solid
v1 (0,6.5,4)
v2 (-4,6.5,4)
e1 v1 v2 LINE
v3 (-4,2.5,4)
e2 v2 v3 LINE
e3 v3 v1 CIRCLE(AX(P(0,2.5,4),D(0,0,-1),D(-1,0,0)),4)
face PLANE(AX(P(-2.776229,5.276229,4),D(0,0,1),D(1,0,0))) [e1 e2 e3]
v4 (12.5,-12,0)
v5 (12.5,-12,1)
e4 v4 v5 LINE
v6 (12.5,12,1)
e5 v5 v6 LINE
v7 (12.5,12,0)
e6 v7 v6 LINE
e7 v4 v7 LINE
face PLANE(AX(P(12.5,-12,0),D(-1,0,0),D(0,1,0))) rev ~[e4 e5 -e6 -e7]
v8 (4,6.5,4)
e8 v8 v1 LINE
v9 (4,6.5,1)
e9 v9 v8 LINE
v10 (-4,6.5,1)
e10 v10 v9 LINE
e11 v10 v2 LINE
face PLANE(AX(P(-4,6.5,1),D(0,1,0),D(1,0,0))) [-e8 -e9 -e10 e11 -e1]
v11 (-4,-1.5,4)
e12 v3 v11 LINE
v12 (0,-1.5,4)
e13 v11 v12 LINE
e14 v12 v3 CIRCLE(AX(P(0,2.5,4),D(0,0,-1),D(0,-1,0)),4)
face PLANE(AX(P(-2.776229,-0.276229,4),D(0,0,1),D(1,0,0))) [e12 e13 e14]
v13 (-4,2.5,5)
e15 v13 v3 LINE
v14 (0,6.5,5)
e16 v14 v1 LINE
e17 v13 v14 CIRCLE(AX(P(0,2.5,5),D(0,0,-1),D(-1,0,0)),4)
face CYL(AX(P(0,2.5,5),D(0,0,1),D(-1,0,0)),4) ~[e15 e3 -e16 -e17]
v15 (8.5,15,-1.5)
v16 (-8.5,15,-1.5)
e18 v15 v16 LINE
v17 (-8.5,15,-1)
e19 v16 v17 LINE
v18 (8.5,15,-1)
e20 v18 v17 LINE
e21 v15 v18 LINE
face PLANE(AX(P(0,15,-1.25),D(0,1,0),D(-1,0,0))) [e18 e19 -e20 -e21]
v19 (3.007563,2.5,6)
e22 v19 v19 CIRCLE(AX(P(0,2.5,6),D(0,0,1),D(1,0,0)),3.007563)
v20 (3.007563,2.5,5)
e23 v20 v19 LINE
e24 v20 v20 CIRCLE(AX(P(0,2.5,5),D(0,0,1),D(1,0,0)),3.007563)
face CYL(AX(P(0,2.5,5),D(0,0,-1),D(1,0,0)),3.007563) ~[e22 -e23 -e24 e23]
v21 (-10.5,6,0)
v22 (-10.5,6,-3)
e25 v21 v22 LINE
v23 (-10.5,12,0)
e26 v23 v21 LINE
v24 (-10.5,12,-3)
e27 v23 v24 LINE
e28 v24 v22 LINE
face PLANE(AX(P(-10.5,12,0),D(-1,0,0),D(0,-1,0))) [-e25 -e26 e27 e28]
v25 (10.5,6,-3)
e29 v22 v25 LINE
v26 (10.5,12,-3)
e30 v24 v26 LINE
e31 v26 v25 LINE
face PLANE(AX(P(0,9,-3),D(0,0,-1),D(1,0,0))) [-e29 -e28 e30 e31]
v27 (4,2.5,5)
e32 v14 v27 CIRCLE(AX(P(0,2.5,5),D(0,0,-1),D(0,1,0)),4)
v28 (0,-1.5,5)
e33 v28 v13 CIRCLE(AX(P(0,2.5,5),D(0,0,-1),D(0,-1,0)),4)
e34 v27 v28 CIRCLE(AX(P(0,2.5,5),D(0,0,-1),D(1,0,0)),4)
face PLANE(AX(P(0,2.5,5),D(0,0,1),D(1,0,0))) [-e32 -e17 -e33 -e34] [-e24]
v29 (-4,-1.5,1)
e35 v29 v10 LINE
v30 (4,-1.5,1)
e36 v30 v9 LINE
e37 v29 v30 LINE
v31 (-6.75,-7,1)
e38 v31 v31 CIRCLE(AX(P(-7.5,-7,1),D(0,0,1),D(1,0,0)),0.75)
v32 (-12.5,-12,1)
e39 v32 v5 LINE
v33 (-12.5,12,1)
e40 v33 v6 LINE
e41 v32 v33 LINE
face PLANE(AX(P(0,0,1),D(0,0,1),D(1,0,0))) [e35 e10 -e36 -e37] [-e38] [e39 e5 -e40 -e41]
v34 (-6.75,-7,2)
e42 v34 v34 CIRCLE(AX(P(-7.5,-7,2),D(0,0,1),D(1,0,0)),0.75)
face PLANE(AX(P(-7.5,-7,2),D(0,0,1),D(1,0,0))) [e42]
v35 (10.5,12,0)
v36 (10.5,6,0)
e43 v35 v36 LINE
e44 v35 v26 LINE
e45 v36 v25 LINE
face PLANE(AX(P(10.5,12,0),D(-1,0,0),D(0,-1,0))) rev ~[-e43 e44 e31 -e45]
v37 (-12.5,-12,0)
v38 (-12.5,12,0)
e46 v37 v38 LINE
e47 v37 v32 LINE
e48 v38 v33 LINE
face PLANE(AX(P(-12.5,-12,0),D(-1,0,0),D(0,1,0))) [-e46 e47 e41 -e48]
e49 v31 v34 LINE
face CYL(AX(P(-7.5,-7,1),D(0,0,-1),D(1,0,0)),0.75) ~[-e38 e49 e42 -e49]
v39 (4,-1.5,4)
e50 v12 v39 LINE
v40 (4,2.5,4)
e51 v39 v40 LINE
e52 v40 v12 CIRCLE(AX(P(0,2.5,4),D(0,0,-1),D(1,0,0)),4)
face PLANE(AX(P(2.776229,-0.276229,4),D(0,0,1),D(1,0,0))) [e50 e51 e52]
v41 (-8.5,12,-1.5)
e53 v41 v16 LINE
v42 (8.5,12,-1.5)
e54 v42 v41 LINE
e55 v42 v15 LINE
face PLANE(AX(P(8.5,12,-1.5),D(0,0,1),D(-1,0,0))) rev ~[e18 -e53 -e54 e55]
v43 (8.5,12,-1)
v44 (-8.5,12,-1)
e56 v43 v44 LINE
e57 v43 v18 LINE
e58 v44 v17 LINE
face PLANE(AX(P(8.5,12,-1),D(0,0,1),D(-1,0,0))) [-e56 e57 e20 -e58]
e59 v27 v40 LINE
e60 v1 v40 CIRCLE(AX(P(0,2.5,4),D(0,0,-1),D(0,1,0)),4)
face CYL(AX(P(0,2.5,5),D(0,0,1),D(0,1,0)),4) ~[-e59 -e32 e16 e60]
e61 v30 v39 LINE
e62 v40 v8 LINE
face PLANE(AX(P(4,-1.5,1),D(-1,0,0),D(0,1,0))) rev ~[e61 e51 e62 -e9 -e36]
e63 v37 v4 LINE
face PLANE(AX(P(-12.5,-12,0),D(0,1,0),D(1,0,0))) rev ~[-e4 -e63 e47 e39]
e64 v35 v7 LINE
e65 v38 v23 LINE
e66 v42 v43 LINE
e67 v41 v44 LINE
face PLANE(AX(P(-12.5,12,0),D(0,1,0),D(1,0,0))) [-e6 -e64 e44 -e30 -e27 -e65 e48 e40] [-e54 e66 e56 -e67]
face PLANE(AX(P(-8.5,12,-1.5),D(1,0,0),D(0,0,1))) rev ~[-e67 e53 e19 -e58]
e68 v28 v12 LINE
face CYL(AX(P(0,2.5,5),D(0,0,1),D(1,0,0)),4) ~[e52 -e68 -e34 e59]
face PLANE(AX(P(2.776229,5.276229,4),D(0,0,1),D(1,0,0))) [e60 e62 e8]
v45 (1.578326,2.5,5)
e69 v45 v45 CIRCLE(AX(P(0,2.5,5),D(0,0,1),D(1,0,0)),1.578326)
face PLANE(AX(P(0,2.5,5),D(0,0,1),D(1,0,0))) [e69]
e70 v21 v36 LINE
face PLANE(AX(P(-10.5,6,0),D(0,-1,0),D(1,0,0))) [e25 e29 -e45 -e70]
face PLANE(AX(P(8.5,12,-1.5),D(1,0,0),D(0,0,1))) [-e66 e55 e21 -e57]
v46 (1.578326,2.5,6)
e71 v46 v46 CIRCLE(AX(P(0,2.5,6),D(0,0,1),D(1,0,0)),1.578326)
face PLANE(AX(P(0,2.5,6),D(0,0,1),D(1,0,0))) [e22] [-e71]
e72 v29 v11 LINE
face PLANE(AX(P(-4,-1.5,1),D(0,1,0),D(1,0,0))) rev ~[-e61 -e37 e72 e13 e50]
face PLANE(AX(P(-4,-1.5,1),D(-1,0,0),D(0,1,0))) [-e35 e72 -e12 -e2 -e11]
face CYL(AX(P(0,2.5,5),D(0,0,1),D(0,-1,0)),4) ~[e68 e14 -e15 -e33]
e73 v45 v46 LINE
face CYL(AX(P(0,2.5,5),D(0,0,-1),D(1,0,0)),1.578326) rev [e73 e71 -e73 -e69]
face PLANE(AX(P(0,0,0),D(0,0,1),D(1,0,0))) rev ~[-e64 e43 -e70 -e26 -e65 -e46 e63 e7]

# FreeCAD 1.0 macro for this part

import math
import FreeCAD as App
import Part
import Sketcher

V = App.Vector
Q = App.Units.Quantity


def add_polygon(sketch, points):
    """Adds a closed chain of lines whose ends are joined by coincident constraints."""
    first, n = sketch.GeometryCount, len(points)
    for a, b in zip(points, points[1:] + points[:1]):
        sketch.addGeometry(Part.LineSegment(App.Vector(*a, 0), App.Vector(*b, 0)), False)
    for i in range(n):
        sketch.addConstraint(Sketcher.Constraint("Coincident", first + i, 2, first + (i + 1) % n, 1))

doc = App.newDocument("Part")
body = doc.addObject("PartDesign::Body", "Body")

# Sketch on XY plane
sketch1 = body.newObject("Sketcher::SketchObject", "Sketch")
sketch1.AttachmentSupport = (doc.getObject("XY_Plane"), [""])
sketch1.MapMode = "FlatFace"
add_polygon(sketch1, [(-12, 12), (-12, -12), (12, -12), (12, 12)])  # lines 0-3
sketch1.addConstraint([
    Sketcher.Constraint("Vertical", 0),
    Sketcher.Constraint("Horizontal", 1),
    Sketcher.Constraint("Vertical", 2),
    Sketcher.Constraint("Horizontal", 3),
    Sketcher.Constraint("Symmetric", 0, 2, 2, 2, -1, 1),
    Sketcher.Constraint("DistanceX", 1, 1, 1, 2, Q("25 mm")),
    Sketcher.Constraint("DistanceY", 0, 2, 0, 1, Q("24 mm")),
])
pad1 = body.newObject("PartDesign::Pad", "Pad")
pad1.Profile = sketch1
pad1.Length = 1

# Sketch on XY plane
sketch2 = body.newObject("Sketcher::SketchObject", "Sketch001")
sketch2.AttachmentSupport = (doc.getObject("XY_Plane"), [""])
sketch2.MapMode = "FlatFace"
sketch2.AttachmentOffset = App.Placement(V(0, 0, 1), App.Rotation())
add_polygon(sketch2, [(-4, 6), (-4, -2), (4, -2), (4, 6)])  # lines 0-3
sketch2.addConstraint([
    Sketcher.Constraint("Vertical", 0),
    Sketcher.Constraint("Horizontal", 1),
    Sketcher.Constraint("Vertical", 2),
    Sketcher.Constraint("Horizontal", 3),
    Sketcher.Constraint("Equal", 3, 0),
    Sketcher.Constraint("DistanceX", 1, 1, 1, 2, Q("8 mm")),
    Sketcher.Constraint("DistanceX", 0, 2, -1, 1, Q("4 mm")),
    Sketcher.Constraint("DistanceY", 0, 2, -1, 1, Q("1.5 mm")),
])
pad2 = body.newObject("PartDesign::Pad", "Pad001")
pad2.Profile = sketch2
pad2.Length = 4

# Sketch on XY plane
sketch3 = body.newObject("Sketcher::SketchObject", "Sketch002")
sketch3.AttachmentSupport = (doc.getObject("XY_Plane"), [""])
sketch3.MapMode = "FlatFace"
sketch3.AttachmentOffset = App.Placement(V(0, 0, 5), App.Rotation())
sketch3.addGeometry([
    Part.ArcOfCircle(Part.Circle(V(0, 2.5, 0), V(0, 0, 1), 4), math.radians(0), math.radians(90)),  # 0
    Part.LineSegment(V(4, 2.5, 0), V(4, 6.5, 0)),  # 1
    Part.LineSegment(V(4, 6.5, 0), V(0, 6.5, 0)),  # 2
    Part.ArcOfCircle(Part.Circle(V(0, 2.5, 0), V(0, 0, 1), 4), math.radians(90), math.radians(180)),  # 3
    Part.LineSegment(V(0, 6.5, 0), V(-4, 6.5, 0)),  # 4
    Part.LineSegment(V(-4, 6.5, 0), V(-4, 2.5, 0)),  # 5
    Part.LineSegment(V(-4, -1.5, 0), V(0, -1.5, 0)),  # 6
    Part.ArcOfCircle(Part.Circle(V(0, 2.5, 0), V(0, 0, 1), 4), math.radians(180), math.radians(270)),  # 7
    Part.LineSegment(V(-4, 2.5, 0), V(-4, -1.5, 0)),  # 8
    Part.LineSegment(V(4, -1.5, 0), V(4, 2.5, 0)),  # 9
    Part.ArcOfCircle(Part.Circle(V(0, 2.5, 0), V(0, 0, 1), 4), math.radians(-90), math.radians(0)),  # 10
    Part.LineSegment(V(0, -1.5, 0), V(4, -1.5, 0)),  # 11
], False)
sketch3.addConstraint([
    Sketcher.Constraint("Tangent", 0, 1, 1, 1),
    Sketcher.Constraint("Coincident", 1, 2, 2, 1),
    Sketcher.Constraint("Tangent", 2, 2, 0, 2),
    Sketcher.Constraint("Tangent", 3, 1, 4, 1),
    Sketcher.Constraint("Coincident", 4, 2, 5, 1),
    Sketcher.Constraint("Tangent", 5, 2, 3, 2),
    Sketcher.Constraint("Tangent", 6, 2, 7, 2),
    Sketcher.Constraint("Tangent", 7, 1, 8, 1),
    Sketcher.Constraint("Coincident", 8, 2, 6, 1),
    Sketcher.Constraint("Tangent", 9, 2, 10, 2),
    Sketcher.Constraint("Tangent", 10, 1, 11, 1),
    Sketcher.Constraint("Coincident", 11, 2, 9, 1),
    Sketcher.Constraint("Vertical", 1),
    Sketcher.Constraint("Horizontal", 2),
    Sketcher.Constraint("Horizontal", 4),
    Sketcher.Constraint("Vertical", 5),
    Sketcher.Constraint("Horizontal", 6),
    Sketcher.Constraint("Vertical", 8),
    Sketcher.Constraint("Vertical", 9),
    Sketcher.Constraint("Horizontal", 11),
    Sketcher.Constraint("Coincident", 3, 3, 0, 3),
    Sketcher.Constraint("Coincident", 7, 3, 0, 3),
    Sketcher.Constraint("Coincident", 10, 3, 0, 3),
    Sketcher.Constraint("Equal", 0, 3),
    Sketcher.Constraint("Equal", 3, 7),
    Sketcher.Constraint("Equal", 7, 10),
    Sketcher.Constraint("PointOnObject", 0, 3, -2),
    Sketcher.Constraint("Radius", 0, Q("4 mm")),
    Sketcher.Constraint("DistanceY", -1, 1, 0, 3, Q("2.5 mm")),
])
pocket1 = body.newObject("PartDesign::Pocket", "Pocket")
pocket1.Profile = sketch3
pocket1.Length = 1

# Sketch on XY plane
sketch4 = body.newObject("Sketcher::SketchObject", "Sketch003")
sketch4.AttachmentSupport = (doc.getObject("XY_Plane"), [""])
sketch4.MapMode = "FlatFace"
sketch4.AttachmentOffset = App.Placement(V(0, 0, 5), App.Rotation())
sketch4.addGeometry([
    Part.Circle(V(0, 2.5, 0), V(0, 0, 1), 3),
    Part.Circle(V(0, 2.5, 0), V(0, 0, 1), 1.6),
], False)
sketch4.addConstraint([
    Sketcher.Constraint("Coincident", 1, 3, 0, 3),
    Sketcher.Constraint("PointOnObject", 0, 3, -2),
    Sketcher.Constraint("DistanceY", -1, 1, 0, 3, Q("2.5 mm")),
    Sketcher.Constraint("Diameter", 0, Q("6.015126 mm")),
    Sketcher.Constraint("Diameter", 1, Q("3.156653 mm")),
])
pad3 = body.newObject("PartDesign::Pad", "Pad002")
pad3.Profile = sketch4
pad3.Length = 1

# Sketch on XY plane
sketch5 = body.newObject("Sketcher::SketchObject", "Sketch004")
sketch5.AttachmentSupport = (doc.getObject("XY_Plane"), [""])
sketch5.MapMode = "FlatFace"
add_polygon(sketch5, [(-10, 6), (-10, 12), (10, 12), (10, 6)])  # lines 0-3
sketch5.addConstraint([
    Sketcher.Constraint("Vertical", 0),
    Sketcher.Constraint("Horizontal", 1),
    Sketcher.Constraint("Vertical", 2),
    Sketcher.Constraint("Horizontal", 3),
    Sketcher.Constraint("DistanceX", 1, 1, 1, 2, Q("21 mm")),
    Sketcher.Constraint("DistanceY", 0, 1, 0, 2, Q("6 mm")),
    Sketcher.Constraint("DistanceY", -1, 1, 0, 2, Q("12 mm")),
    Sketcher.Constraint("DistanceX", 0, 2, -1, 1, Q("10.5 mm")),
])
pad4 = body.newObject("PartDesign::Pad", "Pad003")
pad4.Profile = sketch5
pad4.Length = 3
pad4.Reversed = True

# Sketch on XZ plane
sketch6 = body.newObject("Sketcher::SketchObject", "Sketch005")
sketch6.AttachmentSupport = (doc.getObject("XZ_Plane"), [""])
sketch6.MapMode = "FlatFace"
sketch6.AttachmentOffset = App.Placement(V(0, 0, -12), App.Rotation())
add_polygon(sketch6, [(8.5, -1), (8.5, -1.5), (-8.5, -1.5), (-8.5, -1)])  # lines 0-3
sketch6.addConstraint([
    Sketcher.Constraint("Vertical", 0),
    Sketcher.Constraint("Horizontal", 1),
    Sketcher.Constraint("Vertical", 2),
    Sketcher.Constraint("Horizontal", 3),
    Sketcher.Constraint("DistanceX", 1, 2, 1, 1, Q("17 mm")),
    Sketcher.Constraint("DistanceY", 0, 2, 0, 1, Q("0.5 mm")),
    Sketcher.Constraint("DistanceY", 2, 2, -1, 1, Q("1 mm")),
    Sketcher.Constraint("DistanceX", -1, 1, 0, 2, Q("8.5 mm")),
])
pad5 = body.newObject("PartDesign::Pad", "Pad004")
pad5.Profile = sketch6
pad5.Length = 3
pad5.Reversed = True

# Sketch on XY plane
sketch7 = body.newObject("Sketcher::SketchObject", "Sketch006")
sketch7.AttachmentSupport = (doc.getObject("XY_Plane"), [""])
sketch7.MapMode = "FlatFace"
sketch7.AttachmentOffset = App.Placement(V(0, 0, 1), App.Rotation())
sketch7.addGeometry(Part.Circle(V(-7.5, -7, 0), V(0, 0, 1), 0.8), False)
sketch7.addConstraint([
    Sketcher.Constraint("Diameter", 0, Q("1.5 mm")),
    Sketcher.Constraint("DistanceY", 0, 3, -1, 1, Q("7 mm")),
    Sketcher.Constraint("DistanceX", 0, 3, -1, 1, Q("7.5 mm")),
])
pad6 = body.newObject("PartDesign::Pad", "Pad005")
pad6.Profile = sketch7
pad6.Length = 1

doc.recompute()
